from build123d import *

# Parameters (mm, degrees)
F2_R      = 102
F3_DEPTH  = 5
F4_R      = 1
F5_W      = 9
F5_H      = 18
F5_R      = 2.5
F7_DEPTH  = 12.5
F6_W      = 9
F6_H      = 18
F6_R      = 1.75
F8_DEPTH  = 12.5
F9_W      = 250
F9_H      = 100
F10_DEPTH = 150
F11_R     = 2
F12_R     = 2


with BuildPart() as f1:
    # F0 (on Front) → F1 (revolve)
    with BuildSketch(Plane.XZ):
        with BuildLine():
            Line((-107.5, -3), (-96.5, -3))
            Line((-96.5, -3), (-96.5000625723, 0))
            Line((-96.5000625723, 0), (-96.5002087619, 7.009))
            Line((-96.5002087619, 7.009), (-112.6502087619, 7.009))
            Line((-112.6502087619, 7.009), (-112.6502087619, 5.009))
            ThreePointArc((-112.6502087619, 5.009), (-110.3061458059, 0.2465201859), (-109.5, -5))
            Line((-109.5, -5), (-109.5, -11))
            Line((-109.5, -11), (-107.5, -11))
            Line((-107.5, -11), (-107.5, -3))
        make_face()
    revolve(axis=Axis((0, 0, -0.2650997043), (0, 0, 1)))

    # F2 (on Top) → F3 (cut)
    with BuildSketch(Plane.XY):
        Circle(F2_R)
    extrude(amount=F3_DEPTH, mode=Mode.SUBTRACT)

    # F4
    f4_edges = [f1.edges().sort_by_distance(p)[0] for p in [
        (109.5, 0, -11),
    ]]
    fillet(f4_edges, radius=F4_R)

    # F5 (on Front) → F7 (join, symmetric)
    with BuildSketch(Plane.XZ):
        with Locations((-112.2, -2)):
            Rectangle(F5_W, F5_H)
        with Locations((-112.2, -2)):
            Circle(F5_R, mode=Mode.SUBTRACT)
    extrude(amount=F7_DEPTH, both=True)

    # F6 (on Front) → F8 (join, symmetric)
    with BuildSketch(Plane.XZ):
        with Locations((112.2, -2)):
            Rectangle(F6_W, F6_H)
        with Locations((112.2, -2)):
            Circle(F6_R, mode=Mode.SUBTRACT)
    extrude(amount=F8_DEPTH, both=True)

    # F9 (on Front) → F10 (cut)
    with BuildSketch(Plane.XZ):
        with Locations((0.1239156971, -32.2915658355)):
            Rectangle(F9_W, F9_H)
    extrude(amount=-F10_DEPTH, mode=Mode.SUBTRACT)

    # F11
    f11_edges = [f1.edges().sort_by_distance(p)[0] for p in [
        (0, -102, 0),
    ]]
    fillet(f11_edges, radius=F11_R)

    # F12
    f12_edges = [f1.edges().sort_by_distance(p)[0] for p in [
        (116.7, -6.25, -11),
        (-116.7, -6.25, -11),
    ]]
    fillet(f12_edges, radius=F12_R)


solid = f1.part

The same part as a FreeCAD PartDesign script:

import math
import FreeCAD as App
import Part
import Sketcher
from FreeCAD import Vector


def edges_at(feature, points):
    """Names of the edges that pass closest to the given points."""
    edges = feature.Shape.Edges
    near = lambda p: min(range(len(edges)), key=lambda i: edges[i].distToShape(Part.Vertex(*p))[0])
    return sorted({f"Edge{near(p) + 1}" for p in points})


def add_polygon(sketch, points):
    """Adds a closed chain of lines whose ends are joined by coincident constraints."""
    first, n = sketch.GeometryCount, len(points)
    for a, b in zip(points, points[1:] + points[:1]):
        sketch.addGeometry(Part.LineSegment(App.Vector(*a, 0), App.Vector(*b, 0)), False)
    for i in range(n):
        sketch.addConstraint(Sketcher.Constraint("Coincident", first + i, 2, first + (i + 1) % n, 1))

doc = App.newDocument("Part")
params = doc.addObject("Spreadsheet::Sheet", "Params")
for row, (alias, value) in enumerate([
    ("sketch1_width", "11 mm"),
    ("sketch1_width2", "2 mm"),
    ("sketch1_height", "6 mm"),
    ("sketch1_height2", "8 mm"),
    ("sketch1_length", "3 mm"),
    ("revolution_angle", "360 deg"),
    ("sketch2_diameter", "204 mm"),
    ("pocket1_length", "5 mm"),
    ("fillet_radius", "1 mm"),
    ("sketch3_diameter", "5 mm"),
    ("sketch3_width", "9 mm"),
    ("sketch3_height", "18 mm"),
    ("pad1_length", "25 mm"),
    ("sketch4_diameter", "3.5 mm"),
    ("sketch4_width", "9 mm"),
    ("sketch4_height", "18 mm"),
    ("pad2_length", "25 mm"),
    ("sketch5_width", "250 mm"),
    ("sketch5_height", "100 mm"),
    ("pocket2_length", "150 mm"),
    ("fillet2_radius", "2 mm"),
    ("fillet3_radius", "2 mm"),
], start=1):
    params.set(f"A{row}", alias)
    params.set(f"B{row}", "=" + value)
    params.setAlias(f"B{row}", alias)

body = doc.addObject("PartDesign::Body", "Body")

# Sketch on XZ plane
sketch1 = doc.addObject("Sketcher::SketchObject", "Sketch")
body.addObject(sketch1)
sketch1.AttachmentSupport = (doc.XZ_Plane, [""])
sketch1.MapMode = "FlatFace"
sketch1.addGeometry([
    Part.LineSegment(Vector(-107.5, -3, 0), Vector(-96.5, -3, 0)),  # 0
    Part.LineSegment(Vector(-96.5, -3, 0), Vector(-96.500063, 0, 0)),  # 1
    Part.LineSegment(Vector(-96.500063, 0, 0), Vector(-96.500209, 7.009, 0)),  # 2
    Part.LineSegment(Vector(-96.500209, 7.009, 0), Vector(-112.650209, 7.009, 0)),  # 3
    Part.LineSegment(Vector(-112.650209, 7.009, 0), Vector(-112.650209, 5.009, 0)),  # 4
    Part.ArcOfCircle(Part.Circle(Vector(-126.975651, -5, 0), Vector(0, 0, 1), 17.475651), math.radians(0), math.radians(34.941499)),  # 5
    Part.LineSegment(Vector(-109.5, -5, 0), Vector(-109.5, -11, 0)),  # 6
    Part.LineSegment(Vector(-109.5, -11, 0), Vector(-107.5, -11, 0)),  # 7
    Part.LineSegment(Vector(-107.5, -11, 0), Vector(-107.5, -3, 0)),  # 8
], False)
sketch1.addConstraint([
    Sketcher.Constraint("Coincident", 0, 2, 1, 1),
    Sketcher.Constraint("Coincident", 1, 2, 2, 1),
    Sketcher.Constraint("Coincident", 2, 2, 3, 1),
    Sketcher.Constraint("Coincident", 3, 2, 4, 1),
    Sketcher.Constraint("Coincident", 4, 2, 5, 2),
    Sketcher.Constraint("Tangent", 5, 1, 6, 1),
    Sketcher.Constraint("Coincident", 6, 2, 7, 1),
    Sketcher.Constraint("Coincident", 7, 2, 8, 1),
    Sketcher.Constraint("Coincident", 8, 2, 0, 1),
    Sketcher.Constraint("Horizontal", 0),
    Sketcher.Constraint("Horizontal", 3),
    Sketcher.Constraint("Vertical", 4),
    Sketcher.Constraint("Vertical", 6),
    Sketcher.Constraint("Horizontal", 7),
    Sketcher.Constraint("Vertical", 8),
    Sketcher.Constraint("PointOnObject", 1, 2, -1),
    Sketcher.Constraint("Parallel", 1, 2),
    Sketcher.Constraint("Equal", 7, 4),
    Sketcher.Constraint("DistanceX", 0, 1, 0, 2, 11.0),
    Sketcher.Constraint("DistanceX", 7, 1, 7, 2, 2.0),
    Sketcher.Constraint("DistanceY", 6, 2, 6, 1, 6.0),
    Sketcher.Constraint("DistanceY", 8, 1, 8, 2, 8.0),
    Sketcher.Constraint("Distance", 1, 3.0),
    Sketcher.Constraint("DistanceX", 3, 2, 3, 1, 16.15),
    Sketcher.Constraint("DistanceX", 0, 2, -1, 1, 96.5),
    Sketcher.Constraint("Radius", 5, 17.475651),
    Sketcher.Constraint("Distance", 2, 7.009),
])
sketch1.setExpression("Constraints[18]", "Params.sketch1_width")
sketch1.setExpression("Constraints[19]", "Params.sketch1_width2")
sketch1.setExpression("Constraints[20]", "Params.sketch1_height")
sketch1.setExpression("Constraints[21]", "Params.sketch1_height2")
sketch1.setExpression("Constraints[22]", "Params.sketch1_length")
revolution = doc.addObject("PartDesign::Revolution", "Revolution")
body.addObject(revolution)
revolution.Profile = sketch1
revolution.ReferenceAxis = (sketch1, ["V_Axis"])
revolution.setExpression("Angle", "Params.revolution_angle")

# Sketch on XY plane
sketch2 = doc.addObject("Sketcher::SketchObject", "Sketch001")
body.addObject(sketch2)
sketch2.AttachmentSupport = (doc.XY_Plane, [""])
sketch2.MapMode = "FlatFace"
sketch2.addGeometry(Part.Circle(Vector(0, 0, 0), Vector(0, 0, 1), 102), False)
sketch2.addConstraint([
    Sketcher.Constraint("Coincident", 0, 3, -1, 1),
    Sketcher.Constraint("Diameter", 0, 204.0),
])
sketch2.setExpression("Constraints[1]", "Params.sketch2_diameter")
pocket1 = doc.addObject("PartDesign::Pocket", "Pocket")
body.addObject(pocket1)
pocket1.Profile = sketch2
pocket1.setExpression("Length", "Params.pocket1_length")
pocket1.Reversed = True
doc.recompute()

fillet = doc.addObject("PartDesign::Fillet", "Fillet")
body.addObject(fillet)
fillet.Base = (pocket1, edges_at(pocket1, [(109.5, 0, -11)]))
fillet.setExpression("Radius", "Params.fillet_radius")

# Sketch on XZ plane
sketch3 = doc.addObject("Sketcher::SketchObject", "Sketch002")
body.addObject(sketch3)
sketch3.AttachmentSupport = (doc.XZ_Plane, [""])
sketch3.MapMode = "FlatFace"
add_polygon(sketch3, [(-116.7, 7), (-116.7, -11), (-107.7, -11), (-107.7, 7)])  # lines 0-3
sketch3.addGeometry(Part.Circle(Vector(-112.2, -2, 0), Vector(0, 0, 1), 2.5), False)  # 4
sketch3.addConstraint([
    Sketcher.Constraint("Vertical", 0),
    Sketcher.Constraint("Horizontal", 1),
    Sketcher.Constraint("Vertical", 2),
    Sketcher.Constraint("Horizontal", 3),
    Sketcher.Constraint("Diameter", 4, 5.0),
    Sketcher.Constraint("DistanceX", 1, 1, 1, 2, 9.0),
    Sketcher.Constraint("DistanceY", 0, 2, 0, 1, 18.0),
    Sketcher.Constraint("DistanceY", 4, 3, -1, 1, 2.0),
    Sketcher.Constraint("DistanceY", 0, 2, -1, 1, 11.0),
    Sketcher.Constraint("DistanceX", 4, 3, -1, 1, 112.2),
    Sketcher.Constraint("DistanceX", 0, 2, -1, 1, 116.7),
])
sketch3.setExpression("Constraints[8]", "Params.sketch3_diameter")
sketch3.setExpression("Constraints[9]", "Params.sketch3_width")
sketch3.setExpression("Constraints[10]", "Params.sketch3_height")
pad1 = doc.addObject("PartDesign::Pad", "Pad")
body.addObject(pad1)
pad1.Profile = sketch3
pad1.setExpression("Length", "Params.pad1_length")
pad1.Midplane = True

# Sketch on XZ plane
sketch4 = doc.addObject("Sketcher::SketchObject", "Sketch003")
body.addObject(sketch4)
sketch4.AttachmentSupport = (doc.XZ_Plane, [""])
sketch4.MapMode = "FlatFace"
add_polygon(sketch4, [(107.7, 7), (107.7, -11), (116.7, -11), (116.7, 7)])  # lines 0-3
sketch4.addGeometry(Part.Circle(Vector(112.2, -2, 0), Vector(0, 0, 1), 1.75), False)  # 4
sketch4.addConstraint([
    Sketcher.Constraint("Vertical", 0),
    Sketcher.Constraint("Horizontal", 1),
    Sketcher.Constraint("Vertical", 2),
    Sketcher.Constraint("Horizontal", 3),
    Sketcher.Constraint("Diameter", 4, 3.5),
    Sketcher.Constraint("DistanceX", 1, 1, 1, 2, 9.0),
    Sketcher.Constraint("DistanceY", 0, 2, 0, 1, 18.0),
    Sketcher.Constraint("DistanceY", 4, 3, -1, 1, 2.0),
    Sketcher.Constraint("DistanceY", 0, 2, -1, 1, 11.0),
    Sketcher.Constraint("DistanceX", -1, 1, 4, 3, 112.2),
    Sketcher.Constraint("DistanceX", -1, 1, 0, 2, 107.7),
])
sketch4.setExpression("Constraints[8]", "Params.sketch4_diameter")
sketch4.setExpression("Constraints[9]", "Params.sketch4_width")
sketch4.setExpression("Constraints[10]", "Params.sketch4_height")
pad2 = doc.addObject("PartDesign::Pad", "Pad001")
body.addObject(pad2)
pad2.Profile = sketch4
pad2.setExpression("Length", "Params.pad2_length")
pad2.Midplane = True

# Sketch on XZ plane
sketch5 = doc.addObject("Sketcher::SketchObject", "Sketch004")
body.addObject(sketch5)
sketch5.AttachmentSupport = (doc.XZ_Plane, [""])
sketch5.MapMode = "FlatFace"
add_polygon(sketch5, [(-124.876084, 17.708434), (-124.876084, -82.291566), (125.123916, -82.291566), (125.123916, 17.708434)])  # lines 0-3
sketch5.addConstraint([
    Sketcher.Constraint("Vertical", 0),
    Sketcher.Constraint("Horizontal", 1),
    Sketcher.Constraint("Vertical", 2),
    Sketcher.Constraint("Horizontal", 3),
    Sketcher.Constraint("DistanceX", 1, 1, 1, 2, 250.0),
    Sketcher.Constraint("DistanceY", 0, 2, 0, 1, 100.0),
    Sketcher.Constraint("DistanceX", 0, 2, -1, 1, 124.876084),
    Sketcher.Constraint("DistanceY", 0, 2, -1, 1, 82.291566),
])
sketch5.setExpression("Constraints[8]", "Params.sketch5_width")
sketch5.setExpression("Constraints[9]", "Params.sketch5_height")
pocket2 = doc.addObject("PartDesign::Pocket", "Pocket001")
body.addObject(pocket2)
pocket2.Profile = sketch5
pocket2.setExpression("Length", "Params.pocket2_length")
doc.recompute()

fillet2 = doc.addObject("PartDesign::Fillet", "Fillet001")
body.addObject(fillet2)
fillet2.Base = (pocket2, edges_at(pocket2, [(0, -102, 0)]))
fillet2.setExpression("Radius", "Params.fillet2_radius")
doc.recompute()

fillet3 = doc.addObject("PartDesign::Fillet", "Fillet002")
body.addObject(fillet3)
fillet3.Base = (fillet2, edges_at(fillet2, [(116.7, -6.25, -11), (-116.7, -6.25, -11)]))
fillet3.setExpression("Radius", "Params.fillet3_radius")

doc.recompute()
